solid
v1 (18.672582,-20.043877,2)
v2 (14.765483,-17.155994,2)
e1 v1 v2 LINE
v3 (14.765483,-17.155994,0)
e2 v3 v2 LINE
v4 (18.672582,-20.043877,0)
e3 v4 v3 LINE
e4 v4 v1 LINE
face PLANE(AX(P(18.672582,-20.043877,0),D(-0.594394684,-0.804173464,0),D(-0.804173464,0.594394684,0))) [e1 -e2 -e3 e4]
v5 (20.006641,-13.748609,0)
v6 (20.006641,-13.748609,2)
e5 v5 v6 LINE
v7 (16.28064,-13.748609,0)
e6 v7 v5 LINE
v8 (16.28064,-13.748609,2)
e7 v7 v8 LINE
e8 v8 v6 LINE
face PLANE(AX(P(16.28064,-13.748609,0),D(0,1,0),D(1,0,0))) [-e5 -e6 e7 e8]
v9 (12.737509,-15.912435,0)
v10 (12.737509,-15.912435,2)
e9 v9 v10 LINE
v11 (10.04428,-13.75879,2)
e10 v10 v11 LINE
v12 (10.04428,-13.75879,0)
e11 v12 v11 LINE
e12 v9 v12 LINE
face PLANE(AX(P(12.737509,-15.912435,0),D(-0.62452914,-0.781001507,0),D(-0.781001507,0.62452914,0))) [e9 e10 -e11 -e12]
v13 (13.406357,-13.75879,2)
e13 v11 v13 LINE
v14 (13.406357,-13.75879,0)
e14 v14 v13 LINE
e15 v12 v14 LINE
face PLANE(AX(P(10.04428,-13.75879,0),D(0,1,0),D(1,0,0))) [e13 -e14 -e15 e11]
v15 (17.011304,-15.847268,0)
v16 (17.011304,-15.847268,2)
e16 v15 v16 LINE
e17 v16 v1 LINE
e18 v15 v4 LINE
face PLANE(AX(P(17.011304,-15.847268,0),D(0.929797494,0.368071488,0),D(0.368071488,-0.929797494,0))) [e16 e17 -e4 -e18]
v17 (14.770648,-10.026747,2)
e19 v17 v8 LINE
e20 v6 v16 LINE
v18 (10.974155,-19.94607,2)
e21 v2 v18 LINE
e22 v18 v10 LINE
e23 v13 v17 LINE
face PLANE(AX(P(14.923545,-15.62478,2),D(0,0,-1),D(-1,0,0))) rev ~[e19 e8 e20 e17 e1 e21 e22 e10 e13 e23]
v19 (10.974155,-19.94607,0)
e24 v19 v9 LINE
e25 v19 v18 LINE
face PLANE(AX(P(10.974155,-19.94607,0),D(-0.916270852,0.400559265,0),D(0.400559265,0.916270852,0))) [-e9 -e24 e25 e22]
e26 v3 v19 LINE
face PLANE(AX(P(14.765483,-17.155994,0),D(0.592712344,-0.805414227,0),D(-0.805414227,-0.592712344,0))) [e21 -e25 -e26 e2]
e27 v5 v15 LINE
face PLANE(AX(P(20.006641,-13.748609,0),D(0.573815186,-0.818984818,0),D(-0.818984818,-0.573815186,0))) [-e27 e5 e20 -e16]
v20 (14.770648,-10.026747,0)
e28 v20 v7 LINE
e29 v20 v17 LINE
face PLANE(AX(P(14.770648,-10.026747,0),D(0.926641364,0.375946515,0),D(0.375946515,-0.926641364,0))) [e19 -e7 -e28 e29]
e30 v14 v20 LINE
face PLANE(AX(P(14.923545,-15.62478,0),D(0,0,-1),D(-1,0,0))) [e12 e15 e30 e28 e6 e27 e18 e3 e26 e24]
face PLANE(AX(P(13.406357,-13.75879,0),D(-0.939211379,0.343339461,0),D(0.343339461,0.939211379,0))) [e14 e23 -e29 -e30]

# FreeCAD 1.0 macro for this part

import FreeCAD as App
import Part
import Sketcher
from FreeCAD import Vector
Q = App.Units.Quantity

doc = App.newDocument("Part")
body = doc.addObject("PartDesign::Body", "Body")

# Sketch on XY plane
sketch1 = body.newObject("Sketcher::SketchObject", "Sketch")
sketch1.AttachmentSupport = (doc.getObject("XY_Plane"), [""])
sketch1.MapMode = "FlatFace"
sketch1.addGeometry(Part.LineSegment(Vector(13.406357, -13.75879, 0), Vector(10.04428, -13.75879, 0)), False)
sketch1.addGeometry(Part.LineSegment(Vector(10.04428, -13.75879, 0), Vector(12.737509, -15.912435, 0)), False)
sketch1.addGeometry(Part.LineSegment(Vector(12.737509, -15.912435, 0), Vector(10.974155, -19.94607, 0)), False)
sketch1.addGeometry(Part.LineSegment(Vector(10.974155, -19.94607, 0), Vector(14.765483, -17.155994, 0)), False)
sketch1.addGeometry(Part.LineSegment(Vector(14.765483, -17.155994, 0), Vector(18.672582, -20.043877, 0)), False)
sketch1.addGeometry(Part.LineSegment(Vector(18.672582, -20.043877, 0), Vector(17.011304, -15.847268, 0)), False)
sketch1.addGeometry(Part.LineSegment(Vector(17.011304, -15.847268, 0), Vector(20.006641, -13.748609, 0)), False)
sketch1.addGeometry(Part.LineSegment(Vector(20.006641, -13.748609, 0), Vector(16.28064, -13.748609, 0)), False)
sketch1.addGeometry(Part.LineSegment(Vector(16.28064, -13.748609, 0), Vector(14.770648, -10.026747, 0)), False)
sketch1.addGeometry(Part.LineSegment(Vector(14.770648, -10.026747, 0), Vector(13.406357, -13.75879, 0)), False)
sketch1.addConstraint(Sketcher.Constraint("Coincident", 0, 2, 1, 1))
sketch1.addConstraint(Sketcher.Constraint("Coincident", 1, 2, 2, 1))
sketch1.addConstraint(Sketcher.Constraint("Coincident", 2, 2, 3, 1))
sketch1.addConstraint(Sketcher.Constraint("Coincident", 3, 2, 4, 1))
sketch1.addConstraint(Sketcher.Constraint("Coincident", 4, 2, 5, 1))
sketch1.addConstraint(Sketcher.Constraint("Coincident", 5, 2, 6, 1))
sketch1.addConstraint(Sketcher.Constraint("Coincident", 6, 2, 7, 1))
sketch1.addConstraint(Sketcher.Constraint("Coincident", 7, 2, 8, 1))
sketch1.addConstraint(Sketcher.Constraint("Coincident", 8, 2, 9, 1))
sketch1.addConstraint(Sketcher.Constraint("Coincident", 9, 2, 0, 1))
sketch1.addConstraint(Sketcher.Constraint("Horizontal", 0))
sketch1.addConstraint(Sketcher.Constraint("Horizontal", 7))
sketch1.addConstraint(Sketcher.Constraint("DistanceX", 7, 2, 7, 1, Q("3.726001 mm")))
sketch1.addConstraint(Sketcher.Constraint("Distance", 3, Q("4.707302 mm")))
sketch1.addConstraint(Sketcher.Constraint("DistanceX", 3, 2, 4, 2, Q("3.907099 mm")))
sketch1.addConstraint(Sketcher.Constraint("DistanceX", 0, 2, 4, 2, Q("8.628302 mm")))
sketch1.addConstraint(Sketcher.Constraint("DistanceY", 2, 2, 5, 2, Q("4.098802 mm")))
sketch1.addConstraint(Sketcher.Constraint("Distance", 1, Q("3.44843 mm")))
sketch1.addConstraint(Sketcher.Constraint("Distance", 2, Q("4.40223 mm")))
sketch1.addConstraint(Sketcher.Constraint("DistanceX", 0, 2, 0, 1, Q("3.362077 mm")))
sketch1.addConstraint(Sketcher.Constraint("DistanceX", -1, 1, 0, 2, Q("10.04428 mm")))
sketch1.addConstraint(Sketcher.Constraint("DistanceY", 0, 2, -1, 1, Q("13.75879 mm")))
sketch1.addConstraint(Sketcher.Constraint("DistanceX", -1, 1, 1, 2, Q("12.737509 mm")))
sketch1.addConstraint(Sketcher.Constraint("DistanceY", 2, 2, -1, 1, Q("19.94607 mm")))
sketch1.addConstraint(Sketcher.Constraint("DistanceX", -1, 1, 6, 2, Q("20.006641 mm")))
sketch1.addConstraint(Sketcher.Constraint("DistanceY", 6, 2, -1, 1, Q("13.748609 mm")))
sketch1.addConstraint(Sketcher.Constraint("DistanceY", 4, 2, 1, 2, Q("4.131442 mm")))
sketch1.addConstraint(Sketcher.Constraint("DistanceX", 3, 2, 5, 2, Q("2.245821 mm")))
sketch1.addConstraint(Sketcher.Constraint("DistanceX", 8, 2, 7, 2, Q("1.509992 mm")))
sketch1.addConstraint(Sketcher.Constraint("DistanceY", 7, 2, 8, 2, Q("3.721862 mm")))
pad1 = body.newObject("PartDesign::Pad", "Pad")
pad1.Profile = sketch1
pad1.Length = 2

doc.recompute()
